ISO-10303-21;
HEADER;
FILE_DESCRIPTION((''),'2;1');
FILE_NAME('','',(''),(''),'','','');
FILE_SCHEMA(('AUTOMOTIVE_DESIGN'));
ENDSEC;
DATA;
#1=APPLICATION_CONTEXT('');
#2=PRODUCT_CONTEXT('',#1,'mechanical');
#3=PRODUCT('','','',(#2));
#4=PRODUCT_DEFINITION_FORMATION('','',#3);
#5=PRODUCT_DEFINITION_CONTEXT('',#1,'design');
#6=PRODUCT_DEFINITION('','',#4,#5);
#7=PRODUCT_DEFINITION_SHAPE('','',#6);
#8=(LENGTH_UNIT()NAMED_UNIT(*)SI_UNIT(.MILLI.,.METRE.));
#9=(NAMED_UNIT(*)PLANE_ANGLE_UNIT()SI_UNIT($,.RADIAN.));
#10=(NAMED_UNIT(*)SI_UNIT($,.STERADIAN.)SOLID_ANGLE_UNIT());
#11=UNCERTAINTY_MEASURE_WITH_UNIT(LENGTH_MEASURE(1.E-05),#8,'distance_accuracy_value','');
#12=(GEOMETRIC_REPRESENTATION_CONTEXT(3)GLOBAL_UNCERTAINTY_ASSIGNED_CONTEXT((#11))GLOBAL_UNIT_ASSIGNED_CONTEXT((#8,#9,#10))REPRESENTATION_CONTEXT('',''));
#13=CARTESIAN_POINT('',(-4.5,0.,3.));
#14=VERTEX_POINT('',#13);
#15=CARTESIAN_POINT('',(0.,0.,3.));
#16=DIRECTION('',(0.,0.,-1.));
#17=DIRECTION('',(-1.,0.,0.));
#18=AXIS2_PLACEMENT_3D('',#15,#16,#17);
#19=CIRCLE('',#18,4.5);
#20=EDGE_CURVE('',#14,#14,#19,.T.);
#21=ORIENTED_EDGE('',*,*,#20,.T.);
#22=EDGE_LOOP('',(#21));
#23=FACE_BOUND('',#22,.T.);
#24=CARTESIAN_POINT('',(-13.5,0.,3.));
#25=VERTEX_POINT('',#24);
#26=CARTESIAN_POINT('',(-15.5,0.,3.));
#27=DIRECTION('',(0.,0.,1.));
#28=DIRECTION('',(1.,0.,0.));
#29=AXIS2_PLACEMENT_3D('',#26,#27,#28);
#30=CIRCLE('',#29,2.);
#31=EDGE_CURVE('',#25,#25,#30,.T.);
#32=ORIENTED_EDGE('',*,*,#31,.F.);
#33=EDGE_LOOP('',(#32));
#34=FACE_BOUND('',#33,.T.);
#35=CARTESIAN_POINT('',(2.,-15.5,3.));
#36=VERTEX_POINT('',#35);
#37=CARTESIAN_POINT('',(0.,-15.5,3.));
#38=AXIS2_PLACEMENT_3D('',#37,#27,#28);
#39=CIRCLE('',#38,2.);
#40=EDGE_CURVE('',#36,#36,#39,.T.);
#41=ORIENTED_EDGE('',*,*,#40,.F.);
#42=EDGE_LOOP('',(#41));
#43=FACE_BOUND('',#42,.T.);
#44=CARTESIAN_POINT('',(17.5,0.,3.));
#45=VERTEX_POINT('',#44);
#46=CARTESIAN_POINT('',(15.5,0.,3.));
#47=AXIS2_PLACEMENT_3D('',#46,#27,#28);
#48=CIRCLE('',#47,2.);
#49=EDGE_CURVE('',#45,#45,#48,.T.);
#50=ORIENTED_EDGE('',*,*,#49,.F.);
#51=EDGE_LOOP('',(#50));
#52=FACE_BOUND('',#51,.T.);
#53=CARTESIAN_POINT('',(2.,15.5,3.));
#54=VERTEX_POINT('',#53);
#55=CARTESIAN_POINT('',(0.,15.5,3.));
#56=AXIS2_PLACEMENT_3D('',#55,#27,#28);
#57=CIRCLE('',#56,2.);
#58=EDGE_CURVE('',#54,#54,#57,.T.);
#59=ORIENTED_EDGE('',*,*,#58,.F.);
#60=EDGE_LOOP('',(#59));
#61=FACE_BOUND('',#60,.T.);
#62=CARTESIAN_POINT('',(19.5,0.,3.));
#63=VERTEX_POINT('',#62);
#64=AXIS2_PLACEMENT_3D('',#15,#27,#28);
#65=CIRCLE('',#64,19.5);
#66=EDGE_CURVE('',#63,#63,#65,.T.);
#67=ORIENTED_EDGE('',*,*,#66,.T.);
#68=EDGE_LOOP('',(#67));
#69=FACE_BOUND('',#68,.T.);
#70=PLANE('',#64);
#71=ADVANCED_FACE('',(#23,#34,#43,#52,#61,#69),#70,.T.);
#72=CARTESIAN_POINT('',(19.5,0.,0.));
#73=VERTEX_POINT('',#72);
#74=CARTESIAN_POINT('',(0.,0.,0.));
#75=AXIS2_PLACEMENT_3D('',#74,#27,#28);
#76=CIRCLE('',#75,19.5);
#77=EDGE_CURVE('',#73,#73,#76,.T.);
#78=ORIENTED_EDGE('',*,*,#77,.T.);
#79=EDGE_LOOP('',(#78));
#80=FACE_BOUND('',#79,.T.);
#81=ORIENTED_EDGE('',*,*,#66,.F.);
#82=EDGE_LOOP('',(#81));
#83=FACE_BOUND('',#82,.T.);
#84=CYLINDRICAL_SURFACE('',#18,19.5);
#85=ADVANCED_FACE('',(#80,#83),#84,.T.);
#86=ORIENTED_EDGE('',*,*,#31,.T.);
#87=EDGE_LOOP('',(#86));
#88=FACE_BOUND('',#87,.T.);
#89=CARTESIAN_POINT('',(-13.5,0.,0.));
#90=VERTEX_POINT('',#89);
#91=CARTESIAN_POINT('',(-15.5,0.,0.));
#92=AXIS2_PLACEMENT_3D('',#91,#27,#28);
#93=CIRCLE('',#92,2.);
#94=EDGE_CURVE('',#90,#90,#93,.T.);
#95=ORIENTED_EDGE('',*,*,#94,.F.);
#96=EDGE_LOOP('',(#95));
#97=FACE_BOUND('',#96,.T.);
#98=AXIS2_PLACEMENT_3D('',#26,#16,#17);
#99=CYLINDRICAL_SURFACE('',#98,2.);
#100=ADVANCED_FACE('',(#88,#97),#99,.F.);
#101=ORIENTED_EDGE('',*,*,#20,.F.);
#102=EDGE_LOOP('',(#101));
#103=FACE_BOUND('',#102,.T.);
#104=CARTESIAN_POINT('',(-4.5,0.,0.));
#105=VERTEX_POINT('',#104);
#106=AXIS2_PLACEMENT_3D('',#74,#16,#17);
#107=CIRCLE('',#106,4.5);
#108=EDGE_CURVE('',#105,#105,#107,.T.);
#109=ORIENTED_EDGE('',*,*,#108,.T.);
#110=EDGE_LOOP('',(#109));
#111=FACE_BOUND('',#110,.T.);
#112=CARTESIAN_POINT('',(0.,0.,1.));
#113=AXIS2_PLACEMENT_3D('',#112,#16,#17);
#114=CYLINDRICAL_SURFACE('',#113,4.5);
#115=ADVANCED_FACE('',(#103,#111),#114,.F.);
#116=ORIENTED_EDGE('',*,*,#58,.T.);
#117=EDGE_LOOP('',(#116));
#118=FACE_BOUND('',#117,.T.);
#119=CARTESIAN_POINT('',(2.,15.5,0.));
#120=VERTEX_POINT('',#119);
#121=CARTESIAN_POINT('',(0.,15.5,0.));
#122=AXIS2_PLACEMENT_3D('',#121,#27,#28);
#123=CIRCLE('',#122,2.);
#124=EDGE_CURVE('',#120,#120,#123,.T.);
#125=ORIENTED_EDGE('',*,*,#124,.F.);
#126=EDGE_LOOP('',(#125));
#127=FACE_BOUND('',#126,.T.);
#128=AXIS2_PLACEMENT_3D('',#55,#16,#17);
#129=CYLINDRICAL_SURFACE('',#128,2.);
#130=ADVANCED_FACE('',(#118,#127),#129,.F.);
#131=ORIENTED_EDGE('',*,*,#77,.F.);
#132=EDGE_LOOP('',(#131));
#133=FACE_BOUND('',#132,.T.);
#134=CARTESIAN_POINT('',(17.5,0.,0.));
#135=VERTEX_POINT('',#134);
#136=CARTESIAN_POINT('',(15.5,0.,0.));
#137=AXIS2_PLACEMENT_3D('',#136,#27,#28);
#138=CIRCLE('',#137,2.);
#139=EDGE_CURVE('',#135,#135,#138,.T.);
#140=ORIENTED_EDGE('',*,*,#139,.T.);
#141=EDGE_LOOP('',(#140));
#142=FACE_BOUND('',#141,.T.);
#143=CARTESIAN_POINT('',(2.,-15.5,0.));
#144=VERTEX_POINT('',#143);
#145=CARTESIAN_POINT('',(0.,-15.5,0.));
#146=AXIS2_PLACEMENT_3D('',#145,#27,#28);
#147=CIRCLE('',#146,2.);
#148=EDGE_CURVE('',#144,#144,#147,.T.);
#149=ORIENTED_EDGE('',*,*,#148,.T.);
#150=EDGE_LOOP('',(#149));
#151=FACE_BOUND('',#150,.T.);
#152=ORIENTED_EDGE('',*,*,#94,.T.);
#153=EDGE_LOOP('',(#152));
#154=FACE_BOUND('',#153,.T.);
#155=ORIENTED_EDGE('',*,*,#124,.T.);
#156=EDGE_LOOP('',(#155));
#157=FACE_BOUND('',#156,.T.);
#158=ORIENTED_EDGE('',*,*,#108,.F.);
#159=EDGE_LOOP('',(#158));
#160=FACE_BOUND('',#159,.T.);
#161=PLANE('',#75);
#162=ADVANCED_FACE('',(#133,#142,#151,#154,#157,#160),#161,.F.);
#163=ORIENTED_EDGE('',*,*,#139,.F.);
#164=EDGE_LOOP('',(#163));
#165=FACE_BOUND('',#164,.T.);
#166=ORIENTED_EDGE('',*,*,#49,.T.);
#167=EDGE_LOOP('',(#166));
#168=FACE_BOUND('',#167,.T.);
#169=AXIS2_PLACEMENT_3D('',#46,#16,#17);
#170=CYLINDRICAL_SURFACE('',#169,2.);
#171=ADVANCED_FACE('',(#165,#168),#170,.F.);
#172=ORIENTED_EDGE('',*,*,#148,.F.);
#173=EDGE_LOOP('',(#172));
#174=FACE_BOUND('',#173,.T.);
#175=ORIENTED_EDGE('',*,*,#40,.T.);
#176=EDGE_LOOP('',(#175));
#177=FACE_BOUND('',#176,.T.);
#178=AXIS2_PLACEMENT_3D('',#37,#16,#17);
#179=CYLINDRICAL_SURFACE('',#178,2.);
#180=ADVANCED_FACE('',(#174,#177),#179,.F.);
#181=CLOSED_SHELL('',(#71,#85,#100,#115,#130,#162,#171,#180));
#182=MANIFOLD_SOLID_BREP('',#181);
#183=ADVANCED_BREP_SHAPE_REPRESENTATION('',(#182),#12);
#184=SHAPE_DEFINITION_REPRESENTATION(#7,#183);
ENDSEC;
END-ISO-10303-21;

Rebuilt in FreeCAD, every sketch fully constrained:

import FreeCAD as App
import Part
import Sketcher

doc = App.newDocument("Part")
params = doc.addObject("Spreadsheet::Sheet", "Params")
for row, (alias, value) in enumerate([
    ("sketch1_diameter", "39 mm"),
    ("sketch1_diameter2", "4 mm"),
    ("pad1_length", "3 mm"),
    ("sketch2_diameter", "9 mm"),
    ("pocket1_length", "1 mm"),
    ("sketch3_diameter", "9 mm"),
    ("pocket2_length", "3 mm"),
], start=1):
    params.set(f"A{row}", alias)
    params.set(f"B{row}", "=" + value)
    params.setAlias(f"B{row}", alias)

body = doc.addObject("PartDesign::Body", "Body")

# Sketch on XY plane
sketch1 = body.newObject("Sketcher::SketchObject", "Sketch")
sketch1.AttachmentSupport = (doc.getObject("XY_Plane"), [""])
sketch1.MapMode = "FlatFace"
sketch1.addGeometry([
    Part.Circle(App.Vector(0, 0, 0), App.Vector(0, 0, 1), 19.5),  # 0
    Part.Circle(App.Vector(0, -15.5, 0), App.Vector(0, 0, 1), 2),  # 1
    Part.Circle(App.Vector(-15.5, 0, 0), App.Vector(0, 0, 1), 2),  # 2
    Part.Circle(App.Vector(15.5, 0, 0), App.Vector(0, 0, 1), 2),  # 3
    Part.Circle(App.Vector(0, 15.5, 0), App.Vector(0, 0, 1), 2),  # 4
], False)
sketch1.addConstraint([
    Sketcher.Constraint("Coincident", 0, 3, -1, 1),
    Sketcher.Constraint("Equal", 1, 2),
    Sketcher.Constraint("Equal", 2, 3),
    Sketcher.Constraint("Equal", 3, 4),
    Sketcher.Constraint("Symmetric", 2, 3, 3, 3, -1, 1),
    Sketcher.Constraint("Symmetric", 1, 3, 4, 3, -1, 1),
    Sketcher.Constraint("PointOnObject", 1, 3, -2),
    Sketcher.Constraint("PointOnObject", 2, 3, -1),
    Sketcher.Constraint("Diameter", 0, 39.0),
    Sketcher.Constraint("Diameter", 1, 4.0),
    Sketcher.Constraint("DistanceX", 2, 3, 3, 3, 31.0),
    Sketcher.Constraint("DistanceY", 1, 3, 4, 3, 31.0),
])
sketch1.setExpression("Constraints[8]", "Params.sketch1_diameter")
sketch1.setExpression("Constraints[9]", "Params.sketch1_diameter2")
pad1 = body.newObject("PartDesign::Pad", "Pad")
pad1.Profile = sketch1
pad1.setExpression("Length", "Params.pad1_length")

# Sketch on XY plane
sketch2 = body.newObject("Sketcher::SketchObject", "Sketch001")
sketch2.AttachmentSupport = (doc.getObject("XY_Plane"), [""])
sketch2.MapMode = "FlatFace"
sketch2.addGeometry(Part.Circle(App.Vector(0, 0, 0), App.Vector(0, 0, 1), 4.5), False)
sketch2.addConstraint([
    Sketcher.Constraint("Coincident", 0, 3, -1, 1),
    Sketcher.Constraint("Diameter", 0, 9.0),
])
sketch2.setExpression("Constraints[1]", "Params.sketch2_diameter")
pocket1 = body.newObject("PartDesign::Pocket", "Pocket")
pocket1.Profile = sketch2
pocket1.setExpression("Length", "Params.pocket1_length")
pocket1.Reversed = True

# Sketch on XY plane
sketch3 = body.newObject("Sketcher::SketchObject", "Sketch002")
sketch3.AttachmentSupport = (doc.getObject("XY_Plane"), [""])
sketch3.MapMode = "FlatFace"
sketch3.addGeometry(Part.Circle(App.Vector(0, 0, 0), App.Vector(0, 0, 1), 4.5), False)
sketch3.addConstraint([
    Sketcher.Constraint("Coincident", 0, 3, -1, 1),
    Sketcher.Constraint("Diameter", 0, 9.0),
])
sketch3.setExpression("Constraints[1]", "Params.sketch3_diameter")
pocket2 = body.newObject("PartDesign::Pocket", "Pocket001")
pocket2.Profile = sketch3
pocket2.setExpression("Length", "Params.pocket2_length")
pocket2.Reversed = True

doc.recompute()
